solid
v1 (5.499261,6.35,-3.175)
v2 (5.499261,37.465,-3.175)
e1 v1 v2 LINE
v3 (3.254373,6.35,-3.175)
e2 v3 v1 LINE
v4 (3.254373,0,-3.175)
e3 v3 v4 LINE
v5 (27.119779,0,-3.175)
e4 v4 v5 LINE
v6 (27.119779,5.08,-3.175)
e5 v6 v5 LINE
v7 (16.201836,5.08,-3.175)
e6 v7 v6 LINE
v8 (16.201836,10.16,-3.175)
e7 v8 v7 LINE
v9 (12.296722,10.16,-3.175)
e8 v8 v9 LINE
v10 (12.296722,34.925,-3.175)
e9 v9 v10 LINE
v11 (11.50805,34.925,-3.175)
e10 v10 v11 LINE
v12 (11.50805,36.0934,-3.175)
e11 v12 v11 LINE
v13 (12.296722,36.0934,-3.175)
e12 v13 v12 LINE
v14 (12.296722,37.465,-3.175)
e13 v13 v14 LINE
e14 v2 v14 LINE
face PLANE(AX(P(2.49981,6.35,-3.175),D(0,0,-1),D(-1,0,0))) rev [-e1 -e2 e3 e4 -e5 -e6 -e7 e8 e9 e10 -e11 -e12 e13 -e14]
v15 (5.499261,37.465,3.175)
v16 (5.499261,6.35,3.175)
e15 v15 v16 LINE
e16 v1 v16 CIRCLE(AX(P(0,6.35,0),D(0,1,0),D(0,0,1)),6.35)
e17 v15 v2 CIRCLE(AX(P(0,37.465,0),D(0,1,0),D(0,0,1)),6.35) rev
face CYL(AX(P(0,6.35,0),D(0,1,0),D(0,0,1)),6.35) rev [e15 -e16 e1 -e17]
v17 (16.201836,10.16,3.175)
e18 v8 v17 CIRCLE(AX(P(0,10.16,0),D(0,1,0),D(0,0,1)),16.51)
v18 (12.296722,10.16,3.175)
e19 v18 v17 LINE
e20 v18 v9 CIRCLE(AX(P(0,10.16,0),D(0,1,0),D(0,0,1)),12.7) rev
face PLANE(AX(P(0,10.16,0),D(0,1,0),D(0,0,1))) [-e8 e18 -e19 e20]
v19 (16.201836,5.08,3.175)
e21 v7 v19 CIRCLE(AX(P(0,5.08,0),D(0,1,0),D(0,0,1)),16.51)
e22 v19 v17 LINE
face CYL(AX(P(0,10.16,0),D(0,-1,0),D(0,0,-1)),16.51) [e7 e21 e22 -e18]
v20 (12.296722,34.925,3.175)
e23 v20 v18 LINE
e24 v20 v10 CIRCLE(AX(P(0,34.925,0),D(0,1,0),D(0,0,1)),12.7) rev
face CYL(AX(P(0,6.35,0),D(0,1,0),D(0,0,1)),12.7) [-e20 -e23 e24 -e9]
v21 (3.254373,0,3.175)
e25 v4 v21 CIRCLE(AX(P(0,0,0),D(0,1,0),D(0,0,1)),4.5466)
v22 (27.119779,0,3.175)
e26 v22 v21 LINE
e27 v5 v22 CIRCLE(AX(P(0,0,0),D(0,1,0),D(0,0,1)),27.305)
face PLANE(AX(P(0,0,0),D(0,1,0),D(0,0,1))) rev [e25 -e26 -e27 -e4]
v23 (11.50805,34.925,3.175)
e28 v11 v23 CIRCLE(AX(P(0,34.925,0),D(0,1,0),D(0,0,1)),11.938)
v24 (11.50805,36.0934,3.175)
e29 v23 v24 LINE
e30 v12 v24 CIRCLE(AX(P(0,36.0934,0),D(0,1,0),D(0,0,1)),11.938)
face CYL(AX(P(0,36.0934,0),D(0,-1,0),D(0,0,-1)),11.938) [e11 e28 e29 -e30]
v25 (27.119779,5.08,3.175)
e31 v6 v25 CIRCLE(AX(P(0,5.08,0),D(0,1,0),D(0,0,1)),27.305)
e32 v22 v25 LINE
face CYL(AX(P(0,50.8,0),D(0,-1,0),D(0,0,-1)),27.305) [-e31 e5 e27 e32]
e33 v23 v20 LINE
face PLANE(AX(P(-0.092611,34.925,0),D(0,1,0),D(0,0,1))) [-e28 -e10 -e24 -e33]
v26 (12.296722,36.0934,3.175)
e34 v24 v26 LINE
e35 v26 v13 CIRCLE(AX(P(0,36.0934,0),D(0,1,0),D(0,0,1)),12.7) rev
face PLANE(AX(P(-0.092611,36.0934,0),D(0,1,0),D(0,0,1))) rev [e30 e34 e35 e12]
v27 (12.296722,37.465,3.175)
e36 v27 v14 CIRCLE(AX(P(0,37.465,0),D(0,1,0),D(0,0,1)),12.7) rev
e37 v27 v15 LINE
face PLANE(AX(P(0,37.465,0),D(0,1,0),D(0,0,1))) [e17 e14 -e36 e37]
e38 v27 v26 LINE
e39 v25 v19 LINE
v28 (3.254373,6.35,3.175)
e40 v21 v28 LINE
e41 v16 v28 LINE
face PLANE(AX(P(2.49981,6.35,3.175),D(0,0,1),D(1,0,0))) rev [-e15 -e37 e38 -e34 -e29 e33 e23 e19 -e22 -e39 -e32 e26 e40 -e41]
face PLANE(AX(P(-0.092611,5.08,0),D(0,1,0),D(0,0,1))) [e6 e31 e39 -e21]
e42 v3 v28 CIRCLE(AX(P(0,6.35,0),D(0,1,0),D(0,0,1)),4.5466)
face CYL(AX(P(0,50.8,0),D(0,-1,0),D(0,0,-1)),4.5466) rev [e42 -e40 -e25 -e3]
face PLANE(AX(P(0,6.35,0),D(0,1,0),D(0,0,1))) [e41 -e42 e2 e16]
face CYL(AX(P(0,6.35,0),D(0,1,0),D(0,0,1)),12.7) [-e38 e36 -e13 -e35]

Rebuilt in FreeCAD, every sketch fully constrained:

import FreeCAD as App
import Part
import Sketcher
Q = App.Units.Quantity


def add_polygon(sketch, points):
    """Adds a closed chain of lines whose ends are joined by coincident constraints."""
    first, n = sketch.GeometryCount, len(points)
    for a, b in zip(points, points[1:] + points[:1]):
        sketch.addGeometry(Part.LineSegment(App.Vector(*a, 0), App.Vector(*b, 0)), False)
    for i in range(n):
        sketch.addConstraint(Sketcher.Constraint("Coincident", first + i, 2, first + (i + 1) % n, 1))

doc = App.newDocument("Part")
body = doc.addObject("PartDesign::Body", "Body")

# Sketch on XZ plane
sketch1 = body.newObject("Sketcher::SketchObject", "Sketch")
sketch1.AttachmentSupport = (doc.getObject("XZ_Plane"), [""])
sketch1.MapMode = "FlatFace"
sketch1.addGeometry(Part.Circle(App.Vector(0, 0, 0), App.Vector(0, 0, 1), 27.3), False)
sketch1.addGeometry(Part.Circle(App.Vector(0, 0, 0), App.Vector(0, 0, 1), 4.5), False)
sketch1.addConstraint(Sketcher.Constraint("Coincident", 0, 3, -1, 1))
sketch1.addConstraint(Sketcher.Constraint("Coincident", 1, 3, -1, 1))
sketch1.addConstraint(Sketcher.Constraint("Diameter", 0, Q("2.15 in")))
sketch1.addConstraint(Sketcher.Constraint("Diameter", 1, Q("0.358 in")))
pad1 = body.newObject("PartDesign::Pad", "Pad")
pad1.Profile = sketch1
pad1.Length = Q("2 in")
pad1.Reversed = True

# Sketch on XZ plane
sketch2 = body.newObject("Sketcher::SketchObject", "Sketch001")
sketch2.AttachmentSupport = (doc.getObject("XZ_Plane"), [""])
sketch2.MapMode = "FlatFace"
sketch2.AttachmentOffset = App.Placement(App.Vector(0, 0, -2 * 25.4), App.Rotation())
sketch2.addGeometry(Part.Circle(App.Vector(0, 0, 0), App.Vector(0, 0, 1), 6), False)
sketch2.addConstraint(Sketcher.Constraint("Coincident", 0, 3, -1, 1))
sketch2.addConstraint(Sketcher.Constraint("Diameter", 0, Q("0.5 in")))
pocket1 = body.newObject("PartDesign::Pocket", "Pocket")
pocket1.Profile = sketch2
pocket1.Length = Q("1.75 in")
pocket1.Reversed = True

# Sketch on XZ plane
sketch3 = body.newObject("Sketcher::SketchObject", "Sketch002")
sketch3.AttachmentSupport = (doc.getObject("XZ_Plane"), [""])
sketch3.MapMode = "FlatFace"
sketch3.AttachmentOffset = App.Placement(App.Vector(0, 0, -2 * 25.4), App.Rotation())
add_polygon(sketch3, [(-38, -38), (-38, 38), (38, 38), (38, -38)])  # lines 0-3
sketch3.addGeometry(Part.Circle(App.Vector(0, 0, 0), App.Vector(0, 0, 1), 13), False)  # 4
sketch3.addConstraint(Sketcher.Constraint("Vertical", 0))
sketch3.addConstraint(Sketcher.Constraint("Horizontal", 1))
sketch3.addConstraint(Sketcher.Constraint("Vertical", 2))
sketch3.addConstraint(Sketcher.Constraint("Horizontal", 3))
sketch3.addConstraint(Sketcher.Constraint("Coincident", 4, 3, -1, 1))
sketch3.addConstraint(Sketcher.Constraint("Symmetric", 0, 2, 2, 2, -1, 1))
sketch3.addConstraint(Sketcher.Constraint("Equal", 3, 0))
sketch3.addConstraint(Sketcher.Constraint("Diameter", 4, Q("1 in")))
sketch3.addConstraint(Sketcher.Constraint("DistanceX", 1, 1, 1, 2, Q("75.098 mm")))
pocket2 = body.newObject("PartDesign::Pocket", "Pocket001")
pocket2.Profile = sketch3
pocket2.Length = Q("1.75 in")
pocket2.Reversed = True

# Sketch on XZ plane
sketch4 = body.newObject("Sketcher::SketchObject", "Sketch003")
sketch4.AttachmentSupport = (doc.getObject("XZ_Plane"), [""])
sketch4.MapMode = "FlatFace"
add_polygon(sketch4, [(2, 3), (2, -3), (33, -3), (33, 3)])  # lines 0-3
sketch4.addConstraint(Sketcher.Constraint("Vertical", 0))
sketch4.addConstraint(Sketcher.Constraint("Horizontal", 1))
sketch4.addConstraint(Sketcher.Constraint("Vertical", 2))
sketch4.addConstraint(Sketcher.Constraint("Horizontal", 3))
sketch4.addConstraint(Sketcher.Constraint("DistanceY", 0, 2, 0, 1, Q("0.25 in")))
sketch4.addConstraint(Sketcher.Constraint("DistanceY", 0, 2, -1, 1, Q("0.125 in")))
sketch4.addConstraint(Sketcher.Constraint("DistanceX", 1, 1, 1, 2, Q("30.679481 mm")))
sketch4.addConstraint(Sketcher.Constraint("DistanceX", -1, 1, 0, 2, Q("2.49981 mm")))
pocket3 = body.newObject("PartDesign::Pocket", "Pocket002")
pocket3.Profile = sketch4
pocket3.Length = Q("0.25 in")

# Sketch on XZ plane
sketch5 = body.newObject("Sketcher::SketchObject", "Sketch004")
sketch5.AttachmentSupport = (doc.getObject("XZ_Plane"), [""])
sketch5.MapMode = "FlatFace"
sketch5.AttachmentOffset = App.Placement(App.Vector(0, 0, -1.375 * 25.4), App.Rotation())
add_polygon(sketch5, [(37, 38), (37, -38), (-38, -38), (-38, 38)])  # lines 0-3
sketch5.addGeometry(Part.Circle(App.Vector(0, 0, 0), App.Vector(0, 0, 1), 12), False)  # 4
sketch5.addConstraint(Sketcher.Constraint("Vertical", 0))
sketch5.addConstraint(Sketcher.Constraint("Horizontal", 1))
sketch5.addConstraint(Sketcher.Constraint("Vertical", 2))
sketch5.addConstraint(Sketcher.Constraint("Horizontal", 3))
sketch5.addConstraint(Sketcher.Constraint("Coincident", 4, 3, -1, 1))
sketch5.addConstraint(Sketcher.Constraint("Diameter", 4, Q("0.94 in")))
sketch5.addConstraint(Sketcher.Constraint("DistanceX", 1, 2, 1, 1, Q("74.891 mm")))
sketch5.addConstraint(Sketcher.Constraint("DistanceY", 0, 2, 0, 1, Q("75.076 mm")))
sketch5.addConstraint(Sketcher.Constraint("DistanceX", -1, 1, 0, 2, Q("37.353 mm")))
sketch5.addConstraint(Sketcher.Constraint("DistanceY", 0, 2, -1, 1, Q("37.538 mm")))
pocket4 = body.newObject("PartDesign::Pocket", "Pocket003")
pocket4.Profile = sketch5
pocket4.Length = Q("0.046 in")

# Sketch on XZ plane
sketch6 = body.newObject("Sketcher::SketchObject", "Sketch005")
sketch6.AttachmentSupport = (doc.getObject("XZ_Plane"), [""])
sketch6.MapMode = "FlatFace"
sketch6.AttachmentOffset = App.Placement(App.Vector(0, 0, -1.475 * 25.4), App.Rotation())
sketch6.addGeometry(Part.Circle(App.Vector(0, 0, 0), App.Vector(0, 0, 1), 46), False)
sketch6.addConstraint(Sketcher.Constraint("Coincident", 0, 3, -1, 1))
sketch6.addConstraint(Sketcher.Constraint("Diameter", 0, Q("92.164758 mm")))
pocket5 = body.newObject("PartDesign::Pocket", "Pocket004")
pocket5.Profile = sketch6
pocket5.Type = "ThroughAll"

# Sketch on XZ plane
sketch7 = body.newObject("Sketcher::SketchObject", "Sketch006")
sketch7.AttachmentSupport = (doc.getObject("XZ_Plane"), [""])
sketch7.MapMode = "FlatFace"
sketch7.AttachmentOffset = App.Placement(App.Vector(0, 0, -0.25 * 25.4), App.Rotation())
sketch7.addGeometry(Part.Circle(App.Vector(0, 0, 0), App.Vector(0, 0, 1), 17), False)
sketch7.addGeometry(Part.Circle(App.Vector(0, 0, 0), App.Vector(0, 0, 1), 13), False)
sketch7.addConstraint(Sketcher.Constraint("Coincident", 0, 3, -1, 1))
sketch7.addConstraint(Sketcher.Constraint("Coincident", 1, 3, -1, 1))
sketch7.addConstraint(Sketcher.Constraint("Diameter", 1, Q("1 in")))
sketch7.addConstraint(Sketcher.Constraint("Diameter", 0, Q("1.3 in")))
pad2 = body.newObject("PartDesign::Pad", "Pad001")
pad2.Profile = sketch7
pad2.Length = Q("0.15 in")
pad2.Reversed = True

# Sketch on XZ plane
sketch8 = body.newObject("Sketcher::SketchObject", "Sketch007")
sketch8.AttachmentSupport = (doc.getObject("XZ_Plane"), [""])
sketch8.MapMode = "FlatFace"
sketch8.AttachmentOffset = App.Placement(App.Vector(0, 0, -0.25 * 25.4), App.Rotation())
add_polygon(sketch8, [(-37, -37), (-37, 37), (37, 37), (37, -37)])  # lines 0-3
sketch8.addGeometry(Part.Circle(App.Vector(0, 0, 0), App.Vector(0, 0, 1), 17), False)  # 4
sketch8.addConstraint(Sketcher.Constraint("Vertical", 0))
sketch8.addConstraint(Sketcher.Constraint("Horizontal", 1))
sketch8.addConstraint(Sketcher.Constraint("Vertical", 2))
sketch8.addConstraint(Sketcher.Constraint("Horizontal", 3))
sketch8.addConstraint(Sketcher.Constraint("Coincident", 4, 3, -1, 1))
sketch8.addConstraint(Sketcher.Constraint("Diameter", 4, Q("1.3 in")))
sketch8.addConstraint(Sketcher.Constraint("DistanceX", 1, 1, 1, 2, Q("73.569 mm")))
sketch8.addConstraint(Sketcher.Constraint("DistanceY", 0, 1, 0, 2, Q("73.754 mm")))
sketch8.addConstraint(Sketcher.Constraint("DistanceX", 0, 2, -1, 1, Q("36.877 mm")))
sketch8.addConstraint(Sketcher.Constraint("DistanceY", -1, 1, 0, 2, Q("36.877 mm")))
pocket6 = body.newObject("PartDesign::Pocket", "Pocket005")
pocket6.Profile = sketch8
pocket6.Length = Q("0.05 in")
pocket6.Reversed = True

# Sketch on XZ plane
sketch9 = body.newObject("Sketcher::SketchObject", "Sketch008")
sketch9.AttachmentSupport = (doc.getObject("XZ_Plane"), [""])
sketch9.MapMode = "FlatFace"
add_polygon(sketch9, [(2, 3), (2, -3), (33, -3), (33, 3)])  # lines 0-3
sketch9.addConstraint(Sketcher.Constraint("Vertical", 0))
sketch9.addConstraint(Sketcher.Constraint("Horizontal", 1))
sketch9.addConstraint(Sketcher.Constraint("Vertical", 2))
sketch9.addConstraint(Sketcher.Constraint("Horizontal", 3))
sketch9.addConstraint(Sketcher.Constraint("DistanceY", 0, 2, 0, 1, Q("0.25 in")))
sketch9.addConstraint(Sketcher.Constraint("DistanceY", 0, 2, -1, 1, Q("0.125 in")))
sketch9.addConstraint(Sketcher.Constraint("DistanceX", 1, 1, 1, 2, Q("30.679481 mm")))
sketch9.addConstraint(Sketcher.Constraint("DistanceX", -1, 1, 0, 2, Q("2.49981 mm")))
pocket7 = body.newObject("PartDesign::Pocket", "Pocket006")
pocket7.Profile = sketch9
pocket7.Type = "ThroughAll"

doc.recompute()
